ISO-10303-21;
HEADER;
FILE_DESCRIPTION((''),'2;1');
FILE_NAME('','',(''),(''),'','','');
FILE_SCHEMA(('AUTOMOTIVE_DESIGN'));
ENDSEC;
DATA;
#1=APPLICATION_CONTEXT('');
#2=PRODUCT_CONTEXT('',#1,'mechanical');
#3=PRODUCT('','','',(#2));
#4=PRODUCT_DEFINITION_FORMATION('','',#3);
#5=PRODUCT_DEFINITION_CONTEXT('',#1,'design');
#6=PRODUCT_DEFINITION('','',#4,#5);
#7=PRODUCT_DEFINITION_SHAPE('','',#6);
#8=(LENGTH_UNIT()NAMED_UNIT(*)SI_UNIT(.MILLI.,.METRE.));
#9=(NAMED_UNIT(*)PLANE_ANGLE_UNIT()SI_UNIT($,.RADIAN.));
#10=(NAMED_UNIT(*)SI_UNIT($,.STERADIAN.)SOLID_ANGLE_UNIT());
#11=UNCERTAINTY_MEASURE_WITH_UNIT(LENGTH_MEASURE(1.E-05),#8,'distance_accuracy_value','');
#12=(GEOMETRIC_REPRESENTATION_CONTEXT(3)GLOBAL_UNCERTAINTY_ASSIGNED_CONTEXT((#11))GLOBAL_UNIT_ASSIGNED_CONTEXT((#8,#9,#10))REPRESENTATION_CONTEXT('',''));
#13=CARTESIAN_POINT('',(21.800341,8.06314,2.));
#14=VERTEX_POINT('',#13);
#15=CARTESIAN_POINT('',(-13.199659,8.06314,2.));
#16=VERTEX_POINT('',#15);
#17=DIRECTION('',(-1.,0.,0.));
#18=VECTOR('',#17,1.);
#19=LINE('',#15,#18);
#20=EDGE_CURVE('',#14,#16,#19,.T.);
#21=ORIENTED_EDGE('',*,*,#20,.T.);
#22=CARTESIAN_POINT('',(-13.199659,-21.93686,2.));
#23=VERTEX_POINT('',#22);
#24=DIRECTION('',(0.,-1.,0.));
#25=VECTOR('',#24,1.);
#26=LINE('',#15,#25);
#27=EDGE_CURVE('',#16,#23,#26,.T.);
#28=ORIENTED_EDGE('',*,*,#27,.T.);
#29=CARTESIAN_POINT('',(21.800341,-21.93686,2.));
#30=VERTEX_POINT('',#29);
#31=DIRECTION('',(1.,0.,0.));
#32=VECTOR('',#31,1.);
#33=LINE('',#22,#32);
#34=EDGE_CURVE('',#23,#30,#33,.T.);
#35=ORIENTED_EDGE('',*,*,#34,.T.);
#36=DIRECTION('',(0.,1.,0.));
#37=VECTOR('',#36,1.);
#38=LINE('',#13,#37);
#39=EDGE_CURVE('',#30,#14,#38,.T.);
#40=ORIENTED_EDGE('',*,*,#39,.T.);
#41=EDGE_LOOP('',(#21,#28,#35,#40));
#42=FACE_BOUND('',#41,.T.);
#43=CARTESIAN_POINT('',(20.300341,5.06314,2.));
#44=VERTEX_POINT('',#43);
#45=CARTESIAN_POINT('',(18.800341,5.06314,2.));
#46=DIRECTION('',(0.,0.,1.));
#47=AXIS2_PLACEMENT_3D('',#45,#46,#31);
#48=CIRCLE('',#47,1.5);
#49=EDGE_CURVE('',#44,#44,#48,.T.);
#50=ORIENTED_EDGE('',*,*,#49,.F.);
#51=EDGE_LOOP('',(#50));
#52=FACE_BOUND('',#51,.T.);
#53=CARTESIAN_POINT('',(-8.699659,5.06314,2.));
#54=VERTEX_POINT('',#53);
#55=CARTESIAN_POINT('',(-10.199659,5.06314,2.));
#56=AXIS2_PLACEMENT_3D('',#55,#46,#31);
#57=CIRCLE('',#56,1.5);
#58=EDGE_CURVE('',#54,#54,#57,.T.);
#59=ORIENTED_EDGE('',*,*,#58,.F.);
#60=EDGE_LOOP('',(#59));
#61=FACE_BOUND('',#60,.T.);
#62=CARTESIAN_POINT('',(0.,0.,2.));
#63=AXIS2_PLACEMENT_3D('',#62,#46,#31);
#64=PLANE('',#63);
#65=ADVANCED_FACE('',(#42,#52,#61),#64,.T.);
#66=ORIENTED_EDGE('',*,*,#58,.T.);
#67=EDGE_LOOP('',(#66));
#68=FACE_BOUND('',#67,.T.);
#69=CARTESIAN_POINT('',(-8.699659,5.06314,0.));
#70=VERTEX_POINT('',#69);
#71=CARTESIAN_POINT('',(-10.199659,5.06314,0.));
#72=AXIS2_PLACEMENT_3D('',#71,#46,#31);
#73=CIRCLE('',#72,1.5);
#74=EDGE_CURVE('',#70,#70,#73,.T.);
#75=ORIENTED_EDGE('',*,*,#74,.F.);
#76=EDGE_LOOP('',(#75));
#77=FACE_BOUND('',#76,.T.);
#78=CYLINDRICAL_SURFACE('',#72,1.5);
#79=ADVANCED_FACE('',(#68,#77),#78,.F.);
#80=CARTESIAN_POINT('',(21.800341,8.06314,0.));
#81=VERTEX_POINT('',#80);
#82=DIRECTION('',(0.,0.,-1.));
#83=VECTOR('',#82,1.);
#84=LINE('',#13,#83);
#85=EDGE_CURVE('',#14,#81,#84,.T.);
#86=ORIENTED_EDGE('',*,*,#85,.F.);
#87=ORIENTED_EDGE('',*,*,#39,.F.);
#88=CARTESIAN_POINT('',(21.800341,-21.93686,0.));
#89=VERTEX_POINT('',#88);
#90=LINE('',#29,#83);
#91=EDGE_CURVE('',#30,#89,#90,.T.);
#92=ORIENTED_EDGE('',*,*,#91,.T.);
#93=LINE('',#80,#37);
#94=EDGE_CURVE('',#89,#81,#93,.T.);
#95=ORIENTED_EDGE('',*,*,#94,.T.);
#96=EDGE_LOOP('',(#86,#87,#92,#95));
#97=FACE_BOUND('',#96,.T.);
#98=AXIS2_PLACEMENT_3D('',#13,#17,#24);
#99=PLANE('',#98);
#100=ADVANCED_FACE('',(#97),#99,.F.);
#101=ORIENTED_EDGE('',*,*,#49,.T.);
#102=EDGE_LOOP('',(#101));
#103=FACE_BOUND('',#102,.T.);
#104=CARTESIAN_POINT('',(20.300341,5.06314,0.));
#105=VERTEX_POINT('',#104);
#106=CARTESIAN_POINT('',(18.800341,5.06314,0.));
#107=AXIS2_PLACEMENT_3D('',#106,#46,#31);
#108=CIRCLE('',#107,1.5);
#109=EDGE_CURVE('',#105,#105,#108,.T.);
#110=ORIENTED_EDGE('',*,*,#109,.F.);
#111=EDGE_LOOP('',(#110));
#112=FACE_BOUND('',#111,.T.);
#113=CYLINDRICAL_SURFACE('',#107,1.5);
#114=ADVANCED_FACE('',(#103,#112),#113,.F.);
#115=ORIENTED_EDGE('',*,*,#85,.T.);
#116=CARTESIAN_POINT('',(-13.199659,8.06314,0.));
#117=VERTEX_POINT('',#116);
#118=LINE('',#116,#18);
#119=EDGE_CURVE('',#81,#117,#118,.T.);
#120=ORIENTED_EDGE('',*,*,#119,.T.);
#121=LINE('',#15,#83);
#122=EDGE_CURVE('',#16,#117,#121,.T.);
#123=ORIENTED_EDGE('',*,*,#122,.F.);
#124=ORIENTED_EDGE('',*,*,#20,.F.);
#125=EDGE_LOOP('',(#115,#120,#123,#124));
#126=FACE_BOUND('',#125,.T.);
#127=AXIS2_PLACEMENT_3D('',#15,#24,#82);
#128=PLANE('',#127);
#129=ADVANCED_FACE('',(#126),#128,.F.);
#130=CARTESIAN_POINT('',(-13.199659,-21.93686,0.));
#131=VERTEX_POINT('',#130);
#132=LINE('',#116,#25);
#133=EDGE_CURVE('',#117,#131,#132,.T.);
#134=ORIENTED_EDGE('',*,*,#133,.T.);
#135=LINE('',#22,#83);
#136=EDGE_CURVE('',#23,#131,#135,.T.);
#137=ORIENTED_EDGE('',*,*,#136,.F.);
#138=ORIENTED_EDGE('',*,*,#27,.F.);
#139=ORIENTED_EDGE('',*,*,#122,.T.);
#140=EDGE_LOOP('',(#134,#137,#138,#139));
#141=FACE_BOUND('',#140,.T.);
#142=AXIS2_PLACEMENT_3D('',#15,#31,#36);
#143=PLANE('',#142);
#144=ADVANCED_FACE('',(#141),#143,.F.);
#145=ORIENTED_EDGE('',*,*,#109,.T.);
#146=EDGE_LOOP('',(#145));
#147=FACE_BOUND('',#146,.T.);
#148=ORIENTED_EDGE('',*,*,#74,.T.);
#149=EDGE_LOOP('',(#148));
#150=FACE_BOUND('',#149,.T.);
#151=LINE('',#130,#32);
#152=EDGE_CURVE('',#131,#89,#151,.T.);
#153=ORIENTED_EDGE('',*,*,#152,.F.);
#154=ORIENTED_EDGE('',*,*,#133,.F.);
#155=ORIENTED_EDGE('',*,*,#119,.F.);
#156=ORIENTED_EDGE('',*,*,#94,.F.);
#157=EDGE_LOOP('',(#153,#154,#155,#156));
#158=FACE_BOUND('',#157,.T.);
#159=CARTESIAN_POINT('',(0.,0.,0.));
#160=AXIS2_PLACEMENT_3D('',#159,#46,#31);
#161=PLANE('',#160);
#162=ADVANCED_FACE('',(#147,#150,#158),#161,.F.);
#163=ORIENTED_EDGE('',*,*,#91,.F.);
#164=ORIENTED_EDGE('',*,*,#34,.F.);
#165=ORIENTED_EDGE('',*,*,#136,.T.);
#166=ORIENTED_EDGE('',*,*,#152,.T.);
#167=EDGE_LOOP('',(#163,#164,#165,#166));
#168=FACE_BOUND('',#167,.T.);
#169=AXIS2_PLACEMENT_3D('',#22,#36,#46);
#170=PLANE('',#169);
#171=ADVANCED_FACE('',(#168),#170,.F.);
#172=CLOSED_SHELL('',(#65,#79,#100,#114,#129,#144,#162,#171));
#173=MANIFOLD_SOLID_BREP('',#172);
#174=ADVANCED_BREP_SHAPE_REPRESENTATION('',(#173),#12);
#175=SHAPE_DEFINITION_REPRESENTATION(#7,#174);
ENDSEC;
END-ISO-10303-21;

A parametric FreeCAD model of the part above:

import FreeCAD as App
import Part
import Sketcher

V = App.Vector
Q = App.Units.Quantity

doc = App.newDocument("Part")
params = doc.addObject("Spreadsheet::Sheet", "Params")
for row, (alias, value) in enumerate([
    ("sketch1_width", "35 mm"),
    ("sketch1_height", "30 mm"),
    ("pad1_length", "2 mm"),
    ("sketch2_diameter", "3 mm"),
    ("pocket1_length", "2 mm"),
], start=1):
    params.set(f"A{row}", alias)
    params.set(f"B{row}", "=" + value)
    params.setAlias(f"B{row}", alias)

body = doc.addObject("PartDesign::Body", "Body")

sketch1 = body.newObject("Sketcher::SketchObject", "Sketch")
sketch1.AttachmentSupport = (doc.getObject("XY_Plane"), [""])
sketch1.MapMode = "FlatFace"
sketch1.addGeometry([
    Part.LineSegment(V(-13, 8, 0), V(-13, -22, 0)),
    Part.LineSegment(V(-13, -22, 0), V(22, -22, 0)),
    Part.LineSegment(V(22, -22, 0), V(22, 8, 0)),
    Part.LineSegment(V(22, 8, 0), V(-13, 8, 0)),
], False)
sketch1.addConstraint([
    Sketcher.Constraint("Coincident", 0, 2, 1, 1),
    Sketcher.Constraint("Coincident", 1, 2, 2, 1),
    Sketcher.Constraint("Coincident", 2, 2, 3, 1),
    Sketcher.Constraint("Coincident", 3, 2, 0, 1),
    Sketcher.Constraint("Vertical", 0),
    Sketcher.Constraint("Horizontal", 1),
    Sketcher.Constraint("Vertical", 2),
    Sketcher.Constraint("Horizontal", 3),
    Sketcher.Constraint("DistanceX", 1, 1, 1, 2, Q("35 mm")),
    Sketcher.Constraint("DistanceY", 0, 2, 0, 1, Q("30 mm")),
    Sketcher.Constraint("DistanceX", 0, 2, -1, 1, Q("13.199659 mm")),
    Sketcher.Constraint("DistanceY", 0, 2, -1, 1, Q("21.93686 mm")),
])
sketch1.setExpression("Constraints[8]", "Params.sketch1_width")
sketch1.setExpression("Constraints[9]", "Params.sketch1_height")
pad1 = body.newObject("PartDesign::Pad", "Pad")
pad1.Profile = sketch1
pad1.setExpression("Length", "Params.pad1_length")

sketch2 = body.newObject("Sketcher::SketchObject", "Sketch001")
sketch2.AttachmentSupport = (doc.getObject("XY_Plane"), [""])
sketch2.MapMode = "FlatFace"
sketch2.AttachmentOffset = App.Placement(V(0, 0, 2), App.Rotation())
sketch2.addGeometry([
    Part.Circle(V(-10.2, 5.1, 0), V(0, 0, 1), 1.5),
    Part.Circle(V(18.8, 5.1, 0), V(0, 0, 1), 1.5),
], False)
sketch2.addConstraint([
    Sketcher.Constraint("Equal", 0, 1),
    Sketcher.Constraint("Horizontal", 0, 3, 1, 3),
    Sketcher.Constraint("Diameter", 0, Q("3 mm")),
    Sketcher.Constraint("DistanceX", 0, 3, 1, 3, Q("29 mm")),
    Sketcher.Constraint("DistanceX", 0, 3, -1, 1, Q("10.199659 mm")),
    Sketcher.Constraint("DistanceY", -1, 1, 0, 3, Q("5.06314 mm")),
])
sketch2.setExpression("Constraints[2]", "Params.sketch2_diameter")
pocket1 = body.newObject("PartDesign::Pocket", "Pocket")
pocket1.Profile = sketch2
pocket1.setExpression("Length", "Params.pocket1_length")

doc.recompute()
